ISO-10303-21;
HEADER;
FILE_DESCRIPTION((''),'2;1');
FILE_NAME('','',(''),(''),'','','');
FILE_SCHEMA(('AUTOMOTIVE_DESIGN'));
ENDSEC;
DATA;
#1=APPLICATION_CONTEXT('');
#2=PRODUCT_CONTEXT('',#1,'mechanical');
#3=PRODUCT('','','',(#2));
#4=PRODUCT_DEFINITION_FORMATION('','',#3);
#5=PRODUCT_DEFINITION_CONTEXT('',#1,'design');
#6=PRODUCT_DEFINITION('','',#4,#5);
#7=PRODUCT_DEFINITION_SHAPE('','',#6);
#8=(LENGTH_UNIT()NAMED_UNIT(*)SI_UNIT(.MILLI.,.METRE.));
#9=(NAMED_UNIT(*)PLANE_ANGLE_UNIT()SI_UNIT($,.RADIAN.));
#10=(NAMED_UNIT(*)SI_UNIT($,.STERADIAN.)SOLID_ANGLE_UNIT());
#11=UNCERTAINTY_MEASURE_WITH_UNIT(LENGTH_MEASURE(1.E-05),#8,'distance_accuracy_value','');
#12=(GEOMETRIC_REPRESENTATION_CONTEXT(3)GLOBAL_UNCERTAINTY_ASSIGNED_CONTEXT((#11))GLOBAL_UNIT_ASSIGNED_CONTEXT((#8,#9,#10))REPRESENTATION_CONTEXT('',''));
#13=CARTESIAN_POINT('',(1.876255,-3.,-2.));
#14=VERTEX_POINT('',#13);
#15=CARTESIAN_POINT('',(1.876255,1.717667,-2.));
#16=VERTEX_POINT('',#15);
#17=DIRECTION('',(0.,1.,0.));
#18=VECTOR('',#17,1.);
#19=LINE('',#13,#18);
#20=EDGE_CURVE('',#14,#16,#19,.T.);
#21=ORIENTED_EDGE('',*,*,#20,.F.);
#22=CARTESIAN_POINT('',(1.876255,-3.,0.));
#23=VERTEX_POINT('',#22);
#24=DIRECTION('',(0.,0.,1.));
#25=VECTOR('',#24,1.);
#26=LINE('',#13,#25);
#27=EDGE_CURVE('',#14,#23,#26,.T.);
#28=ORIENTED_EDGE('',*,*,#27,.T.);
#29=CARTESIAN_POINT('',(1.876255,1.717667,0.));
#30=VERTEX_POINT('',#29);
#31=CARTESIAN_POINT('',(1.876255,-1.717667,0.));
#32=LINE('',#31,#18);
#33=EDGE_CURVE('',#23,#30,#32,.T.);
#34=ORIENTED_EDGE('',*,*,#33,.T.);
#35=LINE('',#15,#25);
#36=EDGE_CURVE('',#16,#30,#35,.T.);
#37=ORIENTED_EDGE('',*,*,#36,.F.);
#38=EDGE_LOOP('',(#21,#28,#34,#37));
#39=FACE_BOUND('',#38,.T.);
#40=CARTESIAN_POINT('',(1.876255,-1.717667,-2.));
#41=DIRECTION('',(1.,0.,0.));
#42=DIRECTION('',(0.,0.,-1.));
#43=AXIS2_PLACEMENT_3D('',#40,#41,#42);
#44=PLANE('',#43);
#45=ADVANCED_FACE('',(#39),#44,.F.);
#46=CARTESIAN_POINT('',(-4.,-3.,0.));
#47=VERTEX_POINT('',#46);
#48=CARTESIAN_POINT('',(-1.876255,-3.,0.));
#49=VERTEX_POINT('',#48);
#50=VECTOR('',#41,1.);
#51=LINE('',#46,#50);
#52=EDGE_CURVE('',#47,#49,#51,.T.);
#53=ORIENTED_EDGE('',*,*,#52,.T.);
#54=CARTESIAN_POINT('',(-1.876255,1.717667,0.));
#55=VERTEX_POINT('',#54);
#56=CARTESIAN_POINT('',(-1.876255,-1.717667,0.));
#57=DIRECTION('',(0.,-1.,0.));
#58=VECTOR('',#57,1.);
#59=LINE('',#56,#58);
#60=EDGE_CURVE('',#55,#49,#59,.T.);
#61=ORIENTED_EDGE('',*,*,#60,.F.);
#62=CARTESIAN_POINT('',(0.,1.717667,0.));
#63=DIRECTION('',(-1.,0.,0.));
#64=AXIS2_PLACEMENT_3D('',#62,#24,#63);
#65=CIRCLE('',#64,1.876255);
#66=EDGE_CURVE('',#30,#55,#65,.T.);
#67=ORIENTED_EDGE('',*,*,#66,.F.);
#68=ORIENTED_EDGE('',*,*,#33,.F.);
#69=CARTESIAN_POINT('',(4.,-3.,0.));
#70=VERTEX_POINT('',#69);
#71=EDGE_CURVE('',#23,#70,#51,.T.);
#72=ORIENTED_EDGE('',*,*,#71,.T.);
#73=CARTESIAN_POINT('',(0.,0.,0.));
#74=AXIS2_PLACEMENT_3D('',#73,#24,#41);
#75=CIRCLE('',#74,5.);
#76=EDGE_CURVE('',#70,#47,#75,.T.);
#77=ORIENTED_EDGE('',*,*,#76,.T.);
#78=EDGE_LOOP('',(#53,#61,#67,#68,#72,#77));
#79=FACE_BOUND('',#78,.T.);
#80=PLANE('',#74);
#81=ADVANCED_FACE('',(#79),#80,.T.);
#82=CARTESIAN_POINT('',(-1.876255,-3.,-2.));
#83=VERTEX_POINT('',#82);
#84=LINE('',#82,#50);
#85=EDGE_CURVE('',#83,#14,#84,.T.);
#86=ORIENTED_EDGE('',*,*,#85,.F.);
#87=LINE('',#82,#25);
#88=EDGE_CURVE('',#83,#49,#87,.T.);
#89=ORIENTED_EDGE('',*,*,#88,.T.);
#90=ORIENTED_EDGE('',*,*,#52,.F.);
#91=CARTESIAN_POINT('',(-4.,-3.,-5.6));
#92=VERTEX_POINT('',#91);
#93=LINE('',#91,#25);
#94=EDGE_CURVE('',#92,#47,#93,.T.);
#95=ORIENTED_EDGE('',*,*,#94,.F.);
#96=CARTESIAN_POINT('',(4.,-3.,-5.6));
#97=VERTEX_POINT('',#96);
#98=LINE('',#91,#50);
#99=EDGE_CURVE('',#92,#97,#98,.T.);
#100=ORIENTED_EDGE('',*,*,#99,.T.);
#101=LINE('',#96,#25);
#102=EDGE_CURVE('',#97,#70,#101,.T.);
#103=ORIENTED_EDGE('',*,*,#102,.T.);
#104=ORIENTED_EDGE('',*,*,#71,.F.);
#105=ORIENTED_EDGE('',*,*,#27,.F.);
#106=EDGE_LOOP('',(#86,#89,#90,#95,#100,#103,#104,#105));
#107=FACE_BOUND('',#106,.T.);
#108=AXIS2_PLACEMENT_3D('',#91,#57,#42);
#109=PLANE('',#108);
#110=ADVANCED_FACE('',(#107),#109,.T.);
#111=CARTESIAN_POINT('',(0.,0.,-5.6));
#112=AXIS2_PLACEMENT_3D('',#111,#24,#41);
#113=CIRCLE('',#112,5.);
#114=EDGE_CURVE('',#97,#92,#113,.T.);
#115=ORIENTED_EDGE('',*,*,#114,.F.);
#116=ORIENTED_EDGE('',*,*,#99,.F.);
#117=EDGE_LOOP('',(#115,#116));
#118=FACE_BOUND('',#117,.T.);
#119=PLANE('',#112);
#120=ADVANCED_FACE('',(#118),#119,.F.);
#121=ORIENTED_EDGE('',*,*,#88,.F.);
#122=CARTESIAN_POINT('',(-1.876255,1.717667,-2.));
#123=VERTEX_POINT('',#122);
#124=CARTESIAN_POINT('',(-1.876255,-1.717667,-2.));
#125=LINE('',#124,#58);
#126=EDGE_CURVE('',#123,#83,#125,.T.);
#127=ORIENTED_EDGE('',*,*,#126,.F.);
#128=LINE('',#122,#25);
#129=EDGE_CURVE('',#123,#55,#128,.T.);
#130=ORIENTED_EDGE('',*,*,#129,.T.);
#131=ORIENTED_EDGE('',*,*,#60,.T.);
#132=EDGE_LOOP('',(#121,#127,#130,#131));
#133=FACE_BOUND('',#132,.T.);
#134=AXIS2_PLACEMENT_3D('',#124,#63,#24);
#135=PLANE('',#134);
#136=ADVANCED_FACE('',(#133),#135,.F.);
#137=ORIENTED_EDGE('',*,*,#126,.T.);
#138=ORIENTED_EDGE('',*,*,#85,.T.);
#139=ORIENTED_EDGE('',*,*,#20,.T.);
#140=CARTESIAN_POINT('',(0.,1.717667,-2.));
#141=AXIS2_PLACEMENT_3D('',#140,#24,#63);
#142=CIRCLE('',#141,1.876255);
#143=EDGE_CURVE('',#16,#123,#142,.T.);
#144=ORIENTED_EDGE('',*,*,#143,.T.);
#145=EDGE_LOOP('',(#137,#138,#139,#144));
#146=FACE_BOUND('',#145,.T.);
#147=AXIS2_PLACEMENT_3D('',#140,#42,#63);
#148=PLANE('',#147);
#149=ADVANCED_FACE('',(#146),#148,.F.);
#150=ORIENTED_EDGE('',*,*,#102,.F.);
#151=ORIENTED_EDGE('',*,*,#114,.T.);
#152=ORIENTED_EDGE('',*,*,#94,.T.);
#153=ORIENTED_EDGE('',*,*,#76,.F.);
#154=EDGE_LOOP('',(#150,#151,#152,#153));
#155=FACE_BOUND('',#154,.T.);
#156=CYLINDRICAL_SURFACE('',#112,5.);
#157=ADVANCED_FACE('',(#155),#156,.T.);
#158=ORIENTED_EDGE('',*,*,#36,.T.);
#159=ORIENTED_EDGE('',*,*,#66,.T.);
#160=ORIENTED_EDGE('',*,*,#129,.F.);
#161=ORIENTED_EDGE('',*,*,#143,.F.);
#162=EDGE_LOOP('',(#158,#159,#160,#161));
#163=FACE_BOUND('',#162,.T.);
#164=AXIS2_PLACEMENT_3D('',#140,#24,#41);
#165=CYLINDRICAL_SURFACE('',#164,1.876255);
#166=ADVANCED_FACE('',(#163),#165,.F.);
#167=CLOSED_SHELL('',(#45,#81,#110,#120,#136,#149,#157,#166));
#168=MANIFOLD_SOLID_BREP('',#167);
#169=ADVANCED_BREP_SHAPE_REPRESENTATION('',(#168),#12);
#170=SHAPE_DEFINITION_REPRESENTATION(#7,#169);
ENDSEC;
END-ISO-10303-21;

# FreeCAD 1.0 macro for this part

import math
import FreeCAD as App
import Part
import Sketcher

V = App.Vector

doc = App.newDocument("Part")
body = doc.addObject("PartDesign::Body", "Body")

# Sketch on XY plane
sketch1 = body.newObject("Sketcher::SketchObject", "Sketch")
sketch1.AttachmentSupport = (doc.getObject("XY_Plane"), [""])
sketch1.MapMode = "FlatFace"
sketch1.addGeometry([
    Part.LineSegment(V(-4, -3, 0), V(4, -3, 0)),
    Part.ArcOfCircle(Part.Circle(V(0, 0, 0), V(0, 0, 1), 5), math.radians(-37), math.radians(217)),
], False)
sketch1.addConstraint([
    Sketcher.Constraint("Coincident", 0, 1, 1, 2),
    Sketcher.Constraint("Coincident", 1, 1, 0, 2),
    Sketcher.Constraint("Horizontal", 0),
    Sketcher.Constraint("Coincident", 1, 3, -1, 1),
    Sketcher.Constraint("Radius", 1, 5.0),
    Sketcher.Constraint("DistanceX", 0, 1, 0, 2, 8.0),
])
pad1 = body.newObject("PartDesign::Pad", "Pad")
pad1.Profile = sketch1
pad1.Length = 5.6
pad1.Reversed = True

# Sketch on XY plane
sketch2 = body.newObject("Sketcher::SketchObject", "Sketch001")
sketch2.AttachmentSupport = (doc.getObject("XY_Plane"), [""])
sketch2.MapMode = "FlatFace"
sketch2.addGeometry([
    Part.LineSegment(V(-1.9, -3, 0), V(1.9, -3, 0)),
    Part.LineSegment(V(1.9, -3, 0), V(1.9, 1.7, 0)),
    Part.ArcOfCircle(Part.Circle(V(0, 1.7, 0), V(0, 0, 1), 1.9), math.radians(0), math.radians(180)),
    Part.LineSegment(V(-1.9, 1.7, 0), V(-1.9, -3, 0)),
], False)
sketch2.addConstraint([
    Sketcher.Constraint("Coincident", 0, 2, 1, 1),
    Sketcher.Constraint("Tangent", 1, 2, 2, 1),
    Sketcher.Constraint("Tangent", 2, 2, 3, 1),
    Sketcher.Constraint("Coincident", 3, 2, 0, 1),
    Sketcher.Constraint("Horizontal", 0),
    Sketcher.Constraint("Vertical", 1),
    Sketcher.Constraint("Vertical", 3),
    Sketcher.Constraint("PointOnObject", 2, 3, -2),
    Sketcher.Constraint("DistanceY", 0, 2, -1, 1, 3.0),
    Sketcher.Constraint("Radius", 2, 1.876255),
    Sketcher.Constraint("DistanceY", 1, 1, 1, 2, 4.717667),
])
pocket1 = body.newObject("PartDesign::Pocket", "Pocket")
pocket1.Profile = sketch2
pocket1.Length = 2

doc.recompute()
